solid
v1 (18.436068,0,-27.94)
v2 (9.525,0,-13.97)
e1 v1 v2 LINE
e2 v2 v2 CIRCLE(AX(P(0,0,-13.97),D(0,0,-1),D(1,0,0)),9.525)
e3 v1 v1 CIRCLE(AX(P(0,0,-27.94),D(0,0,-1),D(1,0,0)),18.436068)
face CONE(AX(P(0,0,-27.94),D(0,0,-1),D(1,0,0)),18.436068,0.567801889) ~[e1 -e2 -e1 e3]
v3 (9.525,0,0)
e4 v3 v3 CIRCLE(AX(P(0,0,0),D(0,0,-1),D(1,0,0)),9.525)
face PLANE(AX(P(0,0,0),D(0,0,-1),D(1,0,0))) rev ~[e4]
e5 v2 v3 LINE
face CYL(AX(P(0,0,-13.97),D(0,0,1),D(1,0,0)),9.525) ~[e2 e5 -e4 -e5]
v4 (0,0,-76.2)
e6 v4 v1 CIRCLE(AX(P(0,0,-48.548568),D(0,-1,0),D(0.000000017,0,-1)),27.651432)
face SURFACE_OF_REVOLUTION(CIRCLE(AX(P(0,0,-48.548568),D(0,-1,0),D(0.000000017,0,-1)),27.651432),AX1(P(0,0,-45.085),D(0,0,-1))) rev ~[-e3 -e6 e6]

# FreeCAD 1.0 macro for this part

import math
import FreeCAD as App
import Part
import Sketcher

V = App.Vector
Q = App.Units.Quantity

doc = App.newDocument("Part")
body = doc.addObject("PartDesign::Body", "Body")

# Sketch on XZ plane
sketch1 = body.newObject("Sketcher::SketchObject", "Sketch")
sketch1.AttachmentSupport = (doc.getObject("XZ_Plane"), [""])
sketch1.MapMode = "FlatFace"
sketch1.addGeometry([
    Part.LineSegment(V(10, 0, 0), V(0, 0, 0)),  # 0
    Part.LineSegment(V(0, 0, 0), V(0, -76, 0)),  # 1
    Part.ArcOfCircle(Part.Circle(V(0, -49, 0), V(0, 0, 1), 28), math.radians(-90), math.radians(48)),  # 2
    Part.LineSegment(V(18, -28, 0), V(10, -14, 0)),  # 3
    Part.LineSegment(V(10, -14, 0), V(10, 0, 0)),  # 4
], False)
sketch1.addConstraint([
    Sketcher.Constraint("Coincident", 0, 2, 1, 1),
    Sketcher.Constraint("Coincident", 1, 2, 2, 1),
    Sketcher.Constraint("Coincident", 2, 2, 3, 1),
    Sketcher.Constraint("Coincident", 3, 2, 4, 1),
    Sketcher.Constraint("Coincident", 4, 2, 0, 1),
    Sketcher.Constraint("Horizontal", 0),
    Sketcher.Constraint("Vertical", 1),
    Sketcher.Constraint("Vertical", 4),
    Sketcher.Constraint("Coincident", 0, 2, -1, 1),
    Sketcher.Constraint("PointOnObject", 2, 3, -2),
    Sketcher.Constraint("DistanceY", 1, 2, 1, 1, Q("3 in")),
    Sketcher.Constraint("DistanceY", 4, 1, 4, 2, Q("0.55 in")),
    Sketcher.Constraint("DistanceY", 2, 2, -1, 1, Q("1.1 in")),
    Sketcher.Constraint("DistanceX", 0, 2, 0, 1, Q("0.375 in")),
    Sketcher.Constraint("Radius", 2, 27.651432),
])
revolution = body.newObject("PartDesign::Revolution", "Revolution")
revolution.Profile = sketch1
revolution.ReferenceAxis = (sketch1, ["V_Axis"])
revolution.Angle = 360

doc.recompute()
